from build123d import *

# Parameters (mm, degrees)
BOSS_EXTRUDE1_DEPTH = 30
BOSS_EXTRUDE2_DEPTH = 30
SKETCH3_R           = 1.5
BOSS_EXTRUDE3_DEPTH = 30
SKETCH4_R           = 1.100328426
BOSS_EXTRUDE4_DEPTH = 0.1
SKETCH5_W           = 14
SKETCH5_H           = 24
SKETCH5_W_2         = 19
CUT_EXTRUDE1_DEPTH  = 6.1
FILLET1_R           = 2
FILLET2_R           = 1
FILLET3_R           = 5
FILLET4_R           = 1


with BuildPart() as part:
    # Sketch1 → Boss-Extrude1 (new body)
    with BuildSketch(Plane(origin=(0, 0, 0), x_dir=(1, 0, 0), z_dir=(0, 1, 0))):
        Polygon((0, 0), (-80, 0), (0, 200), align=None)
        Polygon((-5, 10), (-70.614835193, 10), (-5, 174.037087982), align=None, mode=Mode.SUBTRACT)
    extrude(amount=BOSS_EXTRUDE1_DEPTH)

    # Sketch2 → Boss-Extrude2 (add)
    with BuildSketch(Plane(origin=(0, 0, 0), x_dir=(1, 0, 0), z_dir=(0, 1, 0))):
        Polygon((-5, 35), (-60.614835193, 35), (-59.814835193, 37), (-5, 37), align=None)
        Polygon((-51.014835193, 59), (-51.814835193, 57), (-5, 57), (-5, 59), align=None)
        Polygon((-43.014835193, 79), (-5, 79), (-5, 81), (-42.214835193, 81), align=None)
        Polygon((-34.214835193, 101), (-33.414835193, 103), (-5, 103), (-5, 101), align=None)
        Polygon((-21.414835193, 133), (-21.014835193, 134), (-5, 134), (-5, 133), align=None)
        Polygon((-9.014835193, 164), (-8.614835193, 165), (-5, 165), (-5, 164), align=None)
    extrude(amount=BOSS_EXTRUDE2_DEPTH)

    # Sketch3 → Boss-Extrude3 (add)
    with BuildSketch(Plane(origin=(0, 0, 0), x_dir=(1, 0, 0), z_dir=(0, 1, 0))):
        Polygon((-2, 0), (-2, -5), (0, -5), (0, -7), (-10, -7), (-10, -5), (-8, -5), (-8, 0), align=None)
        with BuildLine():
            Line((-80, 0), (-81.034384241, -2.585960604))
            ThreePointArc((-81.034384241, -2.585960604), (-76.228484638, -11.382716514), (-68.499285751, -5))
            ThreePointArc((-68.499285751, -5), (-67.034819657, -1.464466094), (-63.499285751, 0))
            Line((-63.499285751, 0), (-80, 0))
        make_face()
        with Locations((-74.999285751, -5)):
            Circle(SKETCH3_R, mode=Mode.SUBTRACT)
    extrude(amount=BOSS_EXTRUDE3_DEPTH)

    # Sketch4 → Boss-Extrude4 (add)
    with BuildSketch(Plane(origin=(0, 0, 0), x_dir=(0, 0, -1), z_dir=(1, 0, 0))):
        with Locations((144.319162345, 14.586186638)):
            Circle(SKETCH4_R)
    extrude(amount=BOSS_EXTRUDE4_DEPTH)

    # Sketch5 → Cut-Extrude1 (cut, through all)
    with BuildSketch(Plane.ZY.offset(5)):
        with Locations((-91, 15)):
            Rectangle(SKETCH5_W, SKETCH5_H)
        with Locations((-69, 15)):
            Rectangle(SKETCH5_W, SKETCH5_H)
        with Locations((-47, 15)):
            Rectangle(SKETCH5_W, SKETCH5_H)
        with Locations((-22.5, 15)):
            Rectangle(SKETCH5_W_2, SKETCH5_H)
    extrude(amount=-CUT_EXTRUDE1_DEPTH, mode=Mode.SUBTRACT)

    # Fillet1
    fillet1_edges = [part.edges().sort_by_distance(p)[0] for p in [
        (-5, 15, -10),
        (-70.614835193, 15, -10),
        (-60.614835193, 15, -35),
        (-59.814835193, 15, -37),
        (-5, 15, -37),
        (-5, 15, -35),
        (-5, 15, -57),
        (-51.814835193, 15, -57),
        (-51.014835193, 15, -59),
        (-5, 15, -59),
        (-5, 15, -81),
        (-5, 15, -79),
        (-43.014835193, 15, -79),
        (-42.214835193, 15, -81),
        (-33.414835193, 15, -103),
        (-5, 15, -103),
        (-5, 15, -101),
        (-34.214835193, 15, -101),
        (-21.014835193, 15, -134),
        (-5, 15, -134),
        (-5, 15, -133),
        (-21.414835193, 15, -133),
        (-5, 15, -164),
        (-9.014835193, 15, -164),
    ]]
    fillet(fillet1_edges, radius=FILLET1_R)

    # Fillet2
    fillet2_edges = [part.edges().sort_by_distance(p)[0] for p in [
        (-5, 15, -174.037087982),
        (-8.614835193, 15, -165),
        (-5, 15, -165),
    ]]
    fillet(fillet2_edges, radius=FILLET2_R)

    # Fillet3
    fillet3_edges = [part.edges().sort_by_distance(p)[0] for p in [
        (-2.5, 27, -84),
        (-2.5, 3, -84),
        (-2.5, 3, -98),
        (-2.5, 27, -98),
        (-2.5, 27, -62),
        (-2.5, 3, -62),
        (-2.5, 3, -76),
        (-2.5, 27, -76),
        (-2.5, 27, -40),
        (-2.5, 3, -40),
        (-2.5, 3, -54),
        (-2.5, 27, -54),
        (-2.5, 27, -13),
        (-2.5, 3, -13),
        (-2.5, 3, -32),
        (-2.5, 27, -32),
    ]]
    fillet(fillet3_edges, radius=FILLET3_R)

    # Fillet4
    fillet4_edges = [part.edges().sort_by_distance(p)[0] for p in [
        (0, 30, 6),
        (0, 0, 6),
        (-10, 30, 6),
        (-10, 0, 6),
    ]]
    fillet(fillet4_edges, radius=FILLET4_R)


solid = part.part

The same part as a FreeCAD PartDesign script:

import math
import FreeCAD as App
import Part
import Sketcher
from FreeCAD import Vector


def edges_at(feature, points):
    """Names of the edges that pass closest to the given points."""
    edges = feature.Shape.Edges
    near = lambda p: min(range(len(edges)), key=lambda i: edges[i].distToShape(Part.Vertex(*p))[0])
    return sorted({f"Edge{near(p) + 1}" for p in points})


def add_polygon(sketch, points):
    """Adds a closed chain of lines whose ends are joined by coincident constraints."""
    first, n = sketch.GeometryCount, len(points)
    for a, b in zip(points, points[1:] + points[:1]):
        sketch.addGeometry(Part.LineSegment(App.Vector(*a, 0), App.Vector(*b, 0)), False)
    for i in range(n):
        sketch.addConstraint(Sketcher.Constraint("Coincident", first + i, 2, first + (i + 1) % n, 1))

doc = App.newDocument("Part")
body = doc.addObject("PartDesign::Body", "Body")

# Sketch on XZ plane
sketch1 = body.newObject("Sketcher::SketchObject", "Sketch")
sketch1.AttachmentSupport = (doc.getObject("XZ_Plane"), [""])
sketch1.MapMode = "FlatFace"
add_polygon(sketch1, [(-80, 0), (0, 0), (0, -200)])  # lines 0-2
add_polygon(sketch1, [(-5, -10), (-70.614835, -10), (-5, -174.037088)])  # lines 3-5
sketch1.addConstraint([
    Sketcher.Constraint("Horizontal", 0),
    Sketcher.Constraint("Vertical", 1),
    Sketcher.Constraint("Horizontal", 3),
    Sketcher.Constraint("Vertical", 5),
    Sketcher.Constraint("Coincident", 0, 2, -1, 1),
    Sketcher.Constraint("Parallel", 2, 4),
    Sketcher.Constraint("DistanceX", 0, 1, 0, 2, 80.0),
    Sketcher.Constraint("DistanceY", 1, 2, 1, 1, 200.0),
    Sketcher.Constraint("DistanceY", 3, 2, -1, 1, 10.0),
    Sketcher.Constraint("DistanceX", 4, 2, -1, 1, 5.0),
    Sketcher.Constraint("Distance", 4, 176.673351),
])
pad1 = body.newObject("PartDesign::Pad", "Pad")
pad1.Profile = sketch1
pad1.Length = 30
pad1.Reversed = True

# Sketch on XZ plane
sketch2 = body.newObject("Sketcher::SketchObject", "Sketch001")
sketch2.AttachmentSupport = (doc.getObject("XZ_Plane"), [""])
sketch2.MapMode = "FlatFace"
add_polygon(sketch2, [(-60.614835, -35), (-5, -35), (-5, -37), (-59.814835, -37)])  # lines 0-3
add_polygon(sketch2, [(-51.014835, -59), (-51.814835, -57), (-5, -57), (-5, -59)])  # lines 4-7
add_polygon(sketch2, [(-43.014835, -79), (-5, -79), (-5, -81), (-42.214835, -81)])  # lines 8-11
add_polygon(sketch2, [(-33.414835, -103), (-34.214835, -101), (-5, -101), (-5, -103)])  # lines 12-15
add_polygon(sketch2, [(-21.014835, -134), (-21.414835, -133), (-5, -133), (-5, -134)])  # lines 16-19
add_polygon(sketch2, [(-8.614835, -165), (-9.014835, -164), (-5, -164), (-5, -165)])  # lines 20-23
sketch2.addConstraint([
    Sketcher.Constraint("Horizontal", 0),
    Sketcher.Constraint("Vertical", 1),
    Sketcher.Constraint("Horizontal", 2),
    Sketcher.Constraint("Horizontal", 5),
    Sketcher.Constraint("Vertical", 6),
    Sketcher.Constraint("Horizontal", 7),
    Sketcher.Constraint("Horizontal", 8),
    Sketcher.Constraint("Vertical", 9),
    Sketcher.Constraint("Horizontal", 10),
    Sketcher.Constraint("Horizontal", 13),
    Sketcher.Constraint("Vertical", 14),
    Sketcher.Constraint("Horizontal", 15),
    Sketcher.Constraint("Horizontal", 17),
    Sketcher.Constraint("Vertical", 18),
    Sketcher.Constraint("Horizontal", 19),
    Sketcher.Constraint("Horizontal", 21),
    Sketcher.Constraint("Vertical", 22),
    Sketcher.Constraint("Horizontal", 23),
    Sketcher.Constraint("Parallel", 3, 4),
    Sketcher.Constraint("Parallel", 4, 11),
    Sketcher.Constraint("Parallel", 11, 12),
    Sketcher.Constraint("Parallel", 12, 16),
    Sketcher.Constraint("Parallel", 16, 20),
    Sketcher.Constraint("Vertical", 1, 2, 5, 2),
    Sketcher.Constraint("Vertical", 6, 2, 8, 2),
    Sketcher.Constraint("Vertical", 9, 2, 13, 2),
    Sketcher.Constraint("Vertical", 14, 2, 17, 2),
    Sketcher.Constraint("Vertical", 18, 2, 21, 2),
    Sketcher.Constraint("Equal", 1, 6),
    Sketcher.Constraint("Equal", 6, 9),
    Sketcher.Constraint("Equal", 9, 14),
    Sketcher.Constraint("Equal", 18, 22),
    Sketcher.Constraint("DistanceY", 1, 2, 1, 1, 2.0),
    Sketcher.Constraint("DistanceY", 18, 2, 18, 1, 1.0),
    Sketcher.Constraint("DistanceX", 0, 2, -1, 1, 5.0),
    Sketcher.Constraint("DistanceY", 0, 2, -1, 1, 35.0),
    Sketcher.Constraint("DistanceY", 4, 2, -1, 1, 57.0),
    Sketcher.Constraint("DistanceY", 8, 2, -1, 1, 79.0),
    Sketcher.Constraint("DistanceY", 12, 2, -1, 1, 101.0),
    Sketcher.Constraint("DistanceY", 16, 2, -1, 1, 133.0),
    Sketcher.Constraint("DistanceY", 20, 2, -1, 1, 164.0),
    Sketcher.Constraint("DistanceX", 2, 2, 4, 2, 8.0),
    Sketcher.Constraint("DistanceX", 7, 2, 11, 2, 8.0),
    Sketcher.Constraint("DistanceX", 10, 2, 12, 2, 8.0),
    Sketcher.Constraint("DistanceX", 15, 2, 16, 2, 12.0),
    Sketcher.Constraint("DistanceX", 19, 2, 20, 2, 12.0),
    Sketcher.Constraint("DistanceX", 3, 2, 2, 2, 0.8),
    Sketcher.Constraint("DistanceX", 0, 1, 0, 2, 55.614835),
])
pad2 = body.newObject("PartDesign::Pad", "Pad001")
pad2.Profile = sketch2
pad2.Length = 30
pad2.Reversed = True

# Sketch on XZ plane
sketch3 = body.newObject("Sketcher::SketchObject", "Sketch002")
sketch3.AttachmentSupport = (doc.getObject("XZ_Plane"), [""])
sketch3.MapMode = "FlatFace"
add_polygon(sketch3, [(-2, 5), (-2, 0), (-8, 0), (-8, 5), (-10, 5), (-10, 7), (0, 7), (0, 5)])  # lines 0-7
sketch3.addGeometry(Part.LineSegment(Vector(-80, 0, 0), Vector(-81.034384, 2.585961, 0)), False)  # 8
sketch3.addGeometry(Part.ArcOfCircle(Part.Circle(Vector(-74.999286, 5, 0), Vector(0, 0, 1), 6.5), math.radians(0), math.radians(201.801409)), False)  # 9
sketch3.addGeometry(Part.ArcOfCircle(Part.Circle(Vector(-63.499286, 5, 0), Vector(0, 0, 1), 5), math.radians(180), math.radians(270)), False)  # 10
sketch3.addGeometry(Part.LineSegment(Vector(-63.499286, 0, 0), Vector(-80, 0, 0)), False)  # 11
sketch3.addGeometry(Part.Circle(Vector(-74.999286, 5, 0), Vector(0, 0, 1), 1.5), False)  # 12
sketch3.addConstraint([
    Sketcher.Constraint("Tangent", 8, 2, 9, 2),
    Sketcher.Constraint("Tangent", 9, 1, 10, 1),
    Sketcher.Constraint("Tangent", 10, 2, 11, 1),
    Sketcher.Constraint("Coincident", 11, 2, 8, 1),
    Sketcher.Constraint("Vertical", 0),
    Sketcher.Constraint("Horizontal", 1),
    Sketcher.Constraint("Vertical", 2),
    Sketcher.Constraint("Horizontal", 3),
    Sketcher.Constraint("Vertical", 4),
    Sketcher.Constraint("Horizontal", 5),
    Sketcher.Constraint("Vertical", 6),
    Sketcher.Constraint("Horizontal", 7),
    Sketcher.Constraint("Horizontal", 11),
    Sketcher.Constraint("Coincident", 12, 3, 9, 3),
    Sketcher.Constraint("PointOnObject", 0, 2, -1),
    Sketcher.Constraint("PointOnObject", 5, 2, -2),
    Sketcher.Constraint("PointOnObject", 10, 2, -1),
    Sketcher.Constraint("Horizontal", 9, 3, 10, 3),
    Sketcher.Constraint("Horizontal", 12, 3, 2, 2),
    Sketcher.Constraint("Horizontal", 3, 2, 6, 2),
    Sketcher.Constraint("Equal", 3, 7),
    Sketcher.Constraint("Equal", 7, 4),
    Sketcher.Constraint("Diameter", 12, 3.0),
    Sketcher.Constraint("Radius", 10, 5.0),
    Sketcher.Constraint("Radius", 9, 6.5),
    Sketcher.Constraint("DistanceX", 1, 2, 1, 1, 6.0),
    Sketcher.Constraint("DistanceX", 3, 2, 3, 1, 2.0),
    Sketcher.Constraint("DistanceX", 11, 2, -1, 1, 80.0),
    Sketcher.Constraint("DistanceX", 8, 2, 12, 3, 6.035098),
])
pad3 = body.newObject("PartDesign::Pad", "Pad002")
pad3.Profile = sketch3
pad3.Length = 30
pad3.Reversed = True

# Sketch on YZ plane
sketch4 = body.newObject("Sketcher::SketchObject", "Sketch003")
sketch4.AttachmentSupport = (doc.getObject("YZ_Plane"), [""])
sketch4.MapMode = "FlatFace"
sketch4.addGeometry(Part.Circle(Vector(14.586187, -144.319162, 0), Vector(0, 0, 1), 1.100328), False)
sketch4.addConstraint([
    Sketcher.Constraint("Diameter", 0, 2.200657),
    Sketcher.Constraint("DistanceX", -1, 1, 0, 3, 14.586187),
    Sketcher.Constraint("DistanceY", 0, 3, -1, 1, 144.319162),
])
pad4 = body.newObject("PartDesign::Pad", "Pad003")
pad4.Profile = sketch4
pad4.Length = 0.1

# Sketch on YZ plane
sketch5 = body.newObject("Sketcher::SketchObject", "Sketch004")
sketch5.AttachmentSupport = (doc.getObject("YZ_Plane"), [""])
sketch5.MapMode = "FlatFace"
sketch5.AttachmentOffset = App.Placement(Vector(0, 0, -5), App.Rotation())
add_polygon(sketch5, [(27, -98), (3, -98), (3, -84), (27, -84)])  # lines 0-3
add_polygon(sketch5, [(27, -76), (3, -76), (3, -62), (27, -62)])  # lines 4-7
add_polygon(sketch5, [(27, -54), (3, -54), (3, -40), (27, -40)])  # lines 8-11
add_polygon(sketch5, [(27, -32), (3, -32), (3, -13), (27, -13)])  # lines 12-15
sketch5.addConstraint([
    Sketcher.Constraint("Horizontal", 0),
    Sketcher.Constraint("Vertical", 1),
    Sketcher.Constraint("Horizontal", 2),
    Sketcher.Constraint("Vertical", 3),
    Sketcher.Constraint("Horizontal", 4),
    Sketcher.Constraint("Vertical", 5),
    Sketcher.Constraint("Horizontal", 6),
    Sketcher.Constraint("Vertical", 7),
    Sketcher.Constraint("Horizontal", 8),
    Sketcher.Constraint("Vertical", 9),
    Sketcher.Constraint("Horizontal", 10),
    Sketcher.Constraint("Vertical", 11),
    Sketcher.Constraint("Horizontal", 12),
    Sketcher.Constraint("Vertical", 13),
    Sketcher.Constraint("Horizontal", 14),
    Sketcher.Constraint("Vertical", 15),
    Sketcher.Constraint("Vertical", 1, 2, 4, 2),
    Sketcher.Constraint("Vertical", 3, 2, 6, 2),
    Sketcher.Constraint("Vertical", 5, 2, 8, 2),
    Sketcher.Constraint("Vertical", 7, 2, 10, 2),
    Sketcher.Constraint("Vertical", 9, 2, 12, 2),
    Sketcher.Constraint("Vertical", 11, 2, 14, 2),
    Sketcher.Constraint("Equal", 3, 5),
    Sketcher.Constraint("Equal", 7, 9),
    Sketcher.Constraint("DistanceX", 0, 2, 0, 1, 24.0),
    Sketcher.Constraint("DistanceY", 1, 1, 1, 2, 14.0),
    Sketcher.Constraint("DistanceY", 13, 1, 13, 2, 19.0),
    Sketcher.Constraint("DistanceX", -1, 1, 0, 2, 3.0),
    Sketcher.Constraint("DistanceY", 0, 2, -1, 1, 98.0),
    Sketcher.Constraint("DistanceY", 4, 2, -1, 1, 76.0),
    Sketcher.Constraint("DistanceY", 8, 2, -1, 1, 54.0),
    Sketcher.Constraint("DistanceY", 12, 2, -1, 1, 32.0),
])
pocket1 = body.newObject("PartDesign::Pocket", "Pocket")
pocket1.Profile = sketch5
pocket1.Type = "ThroughAll"
pocket1.Reversed = True
doc.recompute()

fillet = body.newObject("PartDesign::Fillet", "Fillet")
fillet.Base = (pocket1, edges_at(pocket1, [
    (-5, 15, -10),
    (-70.615, 15, -10),
    (-60.615, 15, -35),
    (-59.815, 15, -37),
    (-5, 15, -37),
    (-5, 15, -35),
    (-5, 15, -57),
    (-51.815, 15, -57),
    (-51.015, 15, -59),
    (-5, 15, -59),
    (-5, 15, -81),
    (-5, 15, -79),
    (-43.015, 15, -79),
    (-42.215, 15, -81),
    (-33.415, 15, -103),
    (-5, 15, -103),
    (-5, 15, -101),
    (-34.215, 15, -101),
    (-21.015, 15, -134),
    (-5, 15, -134),
    (-5, 15, -133),
    (-21.415, 15, -133),
    (-5, 15, -164),
    (-9.015, 15, -164),
]))
fillet.Radius = 2
doc.recompute()

fillet2 = body.newObject("PartDesign::Fillet", "Fillet001")
fillet2.Base = (fillet, edges_at(fillet, [(-5, 15, -174.037), (-8.615, 15, -165), (-5, 15, -165)]))
fillet2.Radius = 1
doc.recompute()

fillet3 = body.newObject("PartDesign::Fillet", "Fillet002")
fillet3.Base = (fillet2, edges_at(fillet2, [
    (-2.5, 27, -84),
    (-2.5, 3, -84),
    (-2.5, 3, -98),
    (-2.5, 27, -98),
    (-2.5, 27, -62),
    (-2.5, 3, -62),
    (-2.5, 3, -76),
    (-2.5, 27, -76),
    (-2.5, 27, -40),
    (-2.5, 3, -40),
    (-2.5, 3, -54),
    (-2.5, 27, -54),
    (-2.5, 27, -13),
    (-2.5, 3, -13),
    (-2.5, 3, -32),
    (-2.5, 27, -32),
]))
fillet3.Radius = 5
doc.recompute()

fillet4 = body.newObject("PartDesign::Fillet", "Fillet003")
fillet4.Base = (fillet3, edges_at(fillet3, [
    (0, 30, 6),
    (0, 0, 6),
    (-10, 30, 6),
    (-10, 0, 6),
]))
fillet4.Radius = 1

doc.recompute()
